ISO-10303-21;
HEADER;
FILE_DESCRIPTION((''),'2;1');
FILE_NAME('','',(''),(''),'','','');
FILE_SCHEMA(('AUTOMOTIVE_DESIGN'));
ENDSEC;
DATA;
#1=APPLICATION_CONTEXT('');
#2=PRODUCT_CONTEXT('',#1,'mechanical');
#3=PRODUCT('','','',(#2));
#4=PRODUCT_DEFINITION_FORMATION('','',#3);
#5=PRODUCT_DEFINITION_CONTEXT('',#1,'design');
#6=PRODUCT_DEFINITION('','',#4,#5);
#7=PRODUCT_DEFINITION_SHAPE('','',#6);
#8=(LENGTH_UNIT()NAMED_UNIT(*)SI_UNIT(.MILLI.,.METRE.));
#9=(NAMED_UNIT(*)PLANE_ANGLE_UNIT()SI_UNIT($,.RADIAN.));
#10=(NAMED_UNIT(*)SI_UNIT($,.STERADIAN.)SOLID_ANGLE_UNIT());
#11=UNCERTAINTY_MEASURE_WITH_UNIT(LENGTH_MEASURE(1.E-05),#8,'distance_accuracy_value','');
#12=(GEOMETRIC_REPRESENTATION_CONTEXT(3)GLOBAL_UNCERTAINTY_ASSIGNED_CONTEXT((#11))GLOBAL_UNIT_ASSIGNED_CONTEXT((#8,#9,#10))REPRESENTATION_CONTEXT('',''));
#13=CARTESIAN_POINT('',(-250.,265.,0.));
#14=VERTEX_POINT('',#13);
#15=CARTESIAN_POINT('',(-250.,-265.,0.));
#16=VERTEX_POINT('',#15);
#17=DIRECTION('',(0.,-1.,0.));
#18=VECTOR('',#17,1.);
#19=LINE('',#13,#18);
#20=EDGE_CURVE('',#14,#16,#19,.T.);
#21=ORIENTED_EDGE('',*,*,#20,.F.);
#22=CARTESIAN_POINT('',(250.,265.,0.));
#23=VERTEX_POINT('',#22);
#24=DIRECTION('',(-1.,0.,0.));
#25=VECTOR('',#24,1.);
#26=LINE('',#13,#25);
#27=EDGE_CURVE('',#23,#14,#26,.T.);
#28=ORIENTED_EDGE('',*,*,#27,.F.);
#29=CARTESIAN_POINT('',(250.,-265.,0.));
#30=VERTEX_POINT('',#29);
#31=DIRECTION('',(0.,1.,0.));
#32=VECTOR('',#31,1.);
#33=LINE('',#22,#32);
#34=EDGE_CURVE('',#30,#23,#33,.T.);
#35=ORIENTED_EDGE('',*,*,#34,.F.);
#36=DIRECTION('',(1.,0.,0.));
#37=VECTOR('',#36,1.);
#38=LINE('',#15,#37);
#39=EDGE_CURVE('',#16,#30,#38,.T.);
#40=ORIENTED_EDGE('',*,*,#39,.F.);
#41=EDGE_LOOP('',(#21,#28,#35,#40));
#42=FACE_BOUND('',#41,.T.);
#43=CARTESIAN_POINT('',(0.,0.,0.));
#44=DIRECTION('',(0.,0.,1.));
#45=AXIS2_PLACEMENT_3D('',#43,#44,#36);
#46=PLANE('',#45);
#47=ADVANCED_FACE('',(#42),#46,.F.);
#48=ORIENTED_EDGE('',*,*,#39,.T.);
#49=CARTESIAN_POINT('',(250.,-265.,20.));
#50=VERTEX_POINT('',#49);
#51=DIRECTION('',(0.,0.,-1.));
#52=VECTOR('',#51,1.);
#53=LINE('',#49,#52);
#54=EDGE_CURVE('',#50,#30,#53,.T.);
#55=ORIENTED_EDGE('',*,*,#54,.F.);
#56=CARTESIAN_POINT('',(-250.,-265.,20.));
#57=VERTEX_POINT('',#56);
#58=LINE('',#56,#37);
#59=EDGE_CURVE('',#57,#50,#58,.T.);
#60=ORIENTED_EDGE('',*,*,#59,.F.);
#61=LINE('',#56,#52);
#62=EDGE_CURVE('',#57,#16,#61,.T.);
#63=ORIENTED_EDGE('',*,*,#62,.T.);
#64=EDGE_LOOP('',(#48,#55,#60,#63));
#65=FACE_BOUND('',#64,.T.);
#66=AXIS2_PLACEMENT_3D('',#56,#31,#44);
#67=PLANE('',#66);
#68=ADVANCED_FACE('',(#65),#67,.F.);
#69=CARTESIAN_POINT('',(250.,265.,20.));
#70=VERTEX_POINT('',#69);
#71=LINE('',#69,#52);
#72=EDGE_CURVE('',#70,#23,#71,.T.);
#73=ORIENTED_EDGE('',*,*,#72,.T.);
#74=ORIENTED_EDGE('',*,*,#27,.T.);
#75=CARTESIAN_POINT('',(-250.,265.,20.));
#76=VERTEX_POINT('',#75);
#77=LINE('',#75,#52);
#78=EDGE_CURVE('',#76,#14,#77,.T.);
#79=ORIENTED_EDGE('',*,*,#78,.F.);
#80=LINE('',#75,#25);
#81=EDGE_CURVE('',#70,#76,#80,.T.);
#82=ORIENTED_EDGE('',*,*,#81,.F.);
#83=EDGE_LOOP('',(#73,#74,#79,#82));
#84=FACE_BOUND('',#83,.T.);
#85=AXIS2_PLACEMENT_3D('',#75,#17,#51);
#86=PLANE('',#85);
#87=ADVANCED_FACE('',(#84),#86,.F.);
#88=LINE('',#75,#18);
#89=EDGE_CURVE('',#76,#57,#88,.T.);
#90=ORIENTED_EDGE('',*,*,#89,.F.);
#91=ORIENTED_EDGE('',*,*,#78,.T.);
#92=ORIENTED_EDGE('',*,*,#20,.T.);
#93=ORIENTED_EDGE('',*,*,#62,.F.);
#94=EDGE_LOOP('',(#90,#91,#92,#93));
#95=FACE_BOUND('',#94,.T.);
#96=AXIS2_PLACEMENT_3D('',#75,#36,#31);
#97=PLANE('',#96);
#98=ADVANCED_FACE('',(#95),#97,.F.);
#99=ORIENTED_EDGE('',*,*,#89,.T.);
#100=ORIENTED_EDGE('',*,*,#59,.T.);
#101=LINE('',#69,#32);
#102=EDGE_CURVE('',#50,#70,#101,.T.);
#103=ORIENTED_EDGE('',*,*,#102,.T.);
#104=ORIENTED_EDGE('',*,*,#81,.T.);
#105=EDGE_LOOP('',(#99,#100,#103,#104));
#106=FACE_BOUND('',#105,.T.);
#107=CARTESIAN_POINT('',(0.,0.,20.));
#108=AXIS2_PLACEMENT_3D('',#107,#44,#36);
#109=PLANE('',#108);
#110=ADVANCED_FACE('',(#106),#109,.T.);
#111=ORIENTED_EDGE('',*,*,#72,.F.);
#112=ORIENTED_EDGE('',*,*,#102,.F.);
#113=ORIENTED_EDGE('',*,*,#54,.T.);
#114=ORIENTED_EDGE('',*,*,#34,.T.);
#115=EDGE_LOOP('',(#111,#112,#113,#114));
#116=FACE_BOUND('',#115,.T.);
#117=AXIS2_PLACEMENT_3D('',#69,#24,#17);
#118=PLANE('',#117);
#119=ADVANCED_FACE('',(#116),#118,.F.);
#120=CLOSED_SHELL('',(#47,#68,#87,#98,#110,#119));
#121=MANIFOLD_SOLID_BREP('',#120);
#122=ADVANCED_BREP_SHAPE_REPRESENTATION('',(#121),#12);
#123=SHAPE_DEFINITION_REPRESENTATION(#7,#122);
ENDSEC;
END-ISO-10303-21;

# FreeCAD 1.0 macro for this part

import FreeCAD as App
import Part
import Sketcher

doc = App.newDocument("Part")
body = doc.addObject("PartDesign::Body", "Body")

sketch1 = body.newObject("Sketcher::SketchObject", "Sketch")
sketch1.AttachmentSupport = (doc.getObject("XY_Plane"), [""])
sketch1.MapMode = "FlatFace"
sketch1.addGeometry([
    Part.LineSegment(App.Vector(-250, 265, 0), App.Vector(-250, -265, 0)),
    Part.LineSegment(App.Vector(-250, -265, 0), App.Vector(250, -265, 0)),
    Part.LineSegment(App.Vector(250, -265, 0), App.Vector(250, 265, 0)),
    Part.LineSegment(App.Vector(250, 265, 0), App.Vector(-250, 265, 0)),
], False)
sketch1.addConstraint([
    Sketcher.Constraint("Coincident", 0, 2, 1, 1),
    Sketcher.Constraint("Coincident", 1, 2, 2, 1),
    Sketcher.Constraint("Coincident", 2, 2, 3, 1),
    Sketcher.Constraint("Coincident", 3, 2, 0, 1),
    Sketcher.Constraint("Vertical", 0),
    Sketcher.Constraint("Horizontal", 1),
    Sketcher.Constraint("Vertical", 2),
    Sketcher.Constraint("Horizontal", 3),
    Sketcher.Constraint("Symmetric", 0, 2, 2, 2, -1, 1),
    Sketcher.Constraint("DistanceX", 1, 1, 1, 2, 500.0),
    Sketcher.Constraint("DistanceY", 0, 2, 0, 1, 530.0),
])
pad1 = body.newObject("PartDesign::Pad", "Pad")
pad1.Profile = sketch1
pad1.Length = 20

doc.recompute()
